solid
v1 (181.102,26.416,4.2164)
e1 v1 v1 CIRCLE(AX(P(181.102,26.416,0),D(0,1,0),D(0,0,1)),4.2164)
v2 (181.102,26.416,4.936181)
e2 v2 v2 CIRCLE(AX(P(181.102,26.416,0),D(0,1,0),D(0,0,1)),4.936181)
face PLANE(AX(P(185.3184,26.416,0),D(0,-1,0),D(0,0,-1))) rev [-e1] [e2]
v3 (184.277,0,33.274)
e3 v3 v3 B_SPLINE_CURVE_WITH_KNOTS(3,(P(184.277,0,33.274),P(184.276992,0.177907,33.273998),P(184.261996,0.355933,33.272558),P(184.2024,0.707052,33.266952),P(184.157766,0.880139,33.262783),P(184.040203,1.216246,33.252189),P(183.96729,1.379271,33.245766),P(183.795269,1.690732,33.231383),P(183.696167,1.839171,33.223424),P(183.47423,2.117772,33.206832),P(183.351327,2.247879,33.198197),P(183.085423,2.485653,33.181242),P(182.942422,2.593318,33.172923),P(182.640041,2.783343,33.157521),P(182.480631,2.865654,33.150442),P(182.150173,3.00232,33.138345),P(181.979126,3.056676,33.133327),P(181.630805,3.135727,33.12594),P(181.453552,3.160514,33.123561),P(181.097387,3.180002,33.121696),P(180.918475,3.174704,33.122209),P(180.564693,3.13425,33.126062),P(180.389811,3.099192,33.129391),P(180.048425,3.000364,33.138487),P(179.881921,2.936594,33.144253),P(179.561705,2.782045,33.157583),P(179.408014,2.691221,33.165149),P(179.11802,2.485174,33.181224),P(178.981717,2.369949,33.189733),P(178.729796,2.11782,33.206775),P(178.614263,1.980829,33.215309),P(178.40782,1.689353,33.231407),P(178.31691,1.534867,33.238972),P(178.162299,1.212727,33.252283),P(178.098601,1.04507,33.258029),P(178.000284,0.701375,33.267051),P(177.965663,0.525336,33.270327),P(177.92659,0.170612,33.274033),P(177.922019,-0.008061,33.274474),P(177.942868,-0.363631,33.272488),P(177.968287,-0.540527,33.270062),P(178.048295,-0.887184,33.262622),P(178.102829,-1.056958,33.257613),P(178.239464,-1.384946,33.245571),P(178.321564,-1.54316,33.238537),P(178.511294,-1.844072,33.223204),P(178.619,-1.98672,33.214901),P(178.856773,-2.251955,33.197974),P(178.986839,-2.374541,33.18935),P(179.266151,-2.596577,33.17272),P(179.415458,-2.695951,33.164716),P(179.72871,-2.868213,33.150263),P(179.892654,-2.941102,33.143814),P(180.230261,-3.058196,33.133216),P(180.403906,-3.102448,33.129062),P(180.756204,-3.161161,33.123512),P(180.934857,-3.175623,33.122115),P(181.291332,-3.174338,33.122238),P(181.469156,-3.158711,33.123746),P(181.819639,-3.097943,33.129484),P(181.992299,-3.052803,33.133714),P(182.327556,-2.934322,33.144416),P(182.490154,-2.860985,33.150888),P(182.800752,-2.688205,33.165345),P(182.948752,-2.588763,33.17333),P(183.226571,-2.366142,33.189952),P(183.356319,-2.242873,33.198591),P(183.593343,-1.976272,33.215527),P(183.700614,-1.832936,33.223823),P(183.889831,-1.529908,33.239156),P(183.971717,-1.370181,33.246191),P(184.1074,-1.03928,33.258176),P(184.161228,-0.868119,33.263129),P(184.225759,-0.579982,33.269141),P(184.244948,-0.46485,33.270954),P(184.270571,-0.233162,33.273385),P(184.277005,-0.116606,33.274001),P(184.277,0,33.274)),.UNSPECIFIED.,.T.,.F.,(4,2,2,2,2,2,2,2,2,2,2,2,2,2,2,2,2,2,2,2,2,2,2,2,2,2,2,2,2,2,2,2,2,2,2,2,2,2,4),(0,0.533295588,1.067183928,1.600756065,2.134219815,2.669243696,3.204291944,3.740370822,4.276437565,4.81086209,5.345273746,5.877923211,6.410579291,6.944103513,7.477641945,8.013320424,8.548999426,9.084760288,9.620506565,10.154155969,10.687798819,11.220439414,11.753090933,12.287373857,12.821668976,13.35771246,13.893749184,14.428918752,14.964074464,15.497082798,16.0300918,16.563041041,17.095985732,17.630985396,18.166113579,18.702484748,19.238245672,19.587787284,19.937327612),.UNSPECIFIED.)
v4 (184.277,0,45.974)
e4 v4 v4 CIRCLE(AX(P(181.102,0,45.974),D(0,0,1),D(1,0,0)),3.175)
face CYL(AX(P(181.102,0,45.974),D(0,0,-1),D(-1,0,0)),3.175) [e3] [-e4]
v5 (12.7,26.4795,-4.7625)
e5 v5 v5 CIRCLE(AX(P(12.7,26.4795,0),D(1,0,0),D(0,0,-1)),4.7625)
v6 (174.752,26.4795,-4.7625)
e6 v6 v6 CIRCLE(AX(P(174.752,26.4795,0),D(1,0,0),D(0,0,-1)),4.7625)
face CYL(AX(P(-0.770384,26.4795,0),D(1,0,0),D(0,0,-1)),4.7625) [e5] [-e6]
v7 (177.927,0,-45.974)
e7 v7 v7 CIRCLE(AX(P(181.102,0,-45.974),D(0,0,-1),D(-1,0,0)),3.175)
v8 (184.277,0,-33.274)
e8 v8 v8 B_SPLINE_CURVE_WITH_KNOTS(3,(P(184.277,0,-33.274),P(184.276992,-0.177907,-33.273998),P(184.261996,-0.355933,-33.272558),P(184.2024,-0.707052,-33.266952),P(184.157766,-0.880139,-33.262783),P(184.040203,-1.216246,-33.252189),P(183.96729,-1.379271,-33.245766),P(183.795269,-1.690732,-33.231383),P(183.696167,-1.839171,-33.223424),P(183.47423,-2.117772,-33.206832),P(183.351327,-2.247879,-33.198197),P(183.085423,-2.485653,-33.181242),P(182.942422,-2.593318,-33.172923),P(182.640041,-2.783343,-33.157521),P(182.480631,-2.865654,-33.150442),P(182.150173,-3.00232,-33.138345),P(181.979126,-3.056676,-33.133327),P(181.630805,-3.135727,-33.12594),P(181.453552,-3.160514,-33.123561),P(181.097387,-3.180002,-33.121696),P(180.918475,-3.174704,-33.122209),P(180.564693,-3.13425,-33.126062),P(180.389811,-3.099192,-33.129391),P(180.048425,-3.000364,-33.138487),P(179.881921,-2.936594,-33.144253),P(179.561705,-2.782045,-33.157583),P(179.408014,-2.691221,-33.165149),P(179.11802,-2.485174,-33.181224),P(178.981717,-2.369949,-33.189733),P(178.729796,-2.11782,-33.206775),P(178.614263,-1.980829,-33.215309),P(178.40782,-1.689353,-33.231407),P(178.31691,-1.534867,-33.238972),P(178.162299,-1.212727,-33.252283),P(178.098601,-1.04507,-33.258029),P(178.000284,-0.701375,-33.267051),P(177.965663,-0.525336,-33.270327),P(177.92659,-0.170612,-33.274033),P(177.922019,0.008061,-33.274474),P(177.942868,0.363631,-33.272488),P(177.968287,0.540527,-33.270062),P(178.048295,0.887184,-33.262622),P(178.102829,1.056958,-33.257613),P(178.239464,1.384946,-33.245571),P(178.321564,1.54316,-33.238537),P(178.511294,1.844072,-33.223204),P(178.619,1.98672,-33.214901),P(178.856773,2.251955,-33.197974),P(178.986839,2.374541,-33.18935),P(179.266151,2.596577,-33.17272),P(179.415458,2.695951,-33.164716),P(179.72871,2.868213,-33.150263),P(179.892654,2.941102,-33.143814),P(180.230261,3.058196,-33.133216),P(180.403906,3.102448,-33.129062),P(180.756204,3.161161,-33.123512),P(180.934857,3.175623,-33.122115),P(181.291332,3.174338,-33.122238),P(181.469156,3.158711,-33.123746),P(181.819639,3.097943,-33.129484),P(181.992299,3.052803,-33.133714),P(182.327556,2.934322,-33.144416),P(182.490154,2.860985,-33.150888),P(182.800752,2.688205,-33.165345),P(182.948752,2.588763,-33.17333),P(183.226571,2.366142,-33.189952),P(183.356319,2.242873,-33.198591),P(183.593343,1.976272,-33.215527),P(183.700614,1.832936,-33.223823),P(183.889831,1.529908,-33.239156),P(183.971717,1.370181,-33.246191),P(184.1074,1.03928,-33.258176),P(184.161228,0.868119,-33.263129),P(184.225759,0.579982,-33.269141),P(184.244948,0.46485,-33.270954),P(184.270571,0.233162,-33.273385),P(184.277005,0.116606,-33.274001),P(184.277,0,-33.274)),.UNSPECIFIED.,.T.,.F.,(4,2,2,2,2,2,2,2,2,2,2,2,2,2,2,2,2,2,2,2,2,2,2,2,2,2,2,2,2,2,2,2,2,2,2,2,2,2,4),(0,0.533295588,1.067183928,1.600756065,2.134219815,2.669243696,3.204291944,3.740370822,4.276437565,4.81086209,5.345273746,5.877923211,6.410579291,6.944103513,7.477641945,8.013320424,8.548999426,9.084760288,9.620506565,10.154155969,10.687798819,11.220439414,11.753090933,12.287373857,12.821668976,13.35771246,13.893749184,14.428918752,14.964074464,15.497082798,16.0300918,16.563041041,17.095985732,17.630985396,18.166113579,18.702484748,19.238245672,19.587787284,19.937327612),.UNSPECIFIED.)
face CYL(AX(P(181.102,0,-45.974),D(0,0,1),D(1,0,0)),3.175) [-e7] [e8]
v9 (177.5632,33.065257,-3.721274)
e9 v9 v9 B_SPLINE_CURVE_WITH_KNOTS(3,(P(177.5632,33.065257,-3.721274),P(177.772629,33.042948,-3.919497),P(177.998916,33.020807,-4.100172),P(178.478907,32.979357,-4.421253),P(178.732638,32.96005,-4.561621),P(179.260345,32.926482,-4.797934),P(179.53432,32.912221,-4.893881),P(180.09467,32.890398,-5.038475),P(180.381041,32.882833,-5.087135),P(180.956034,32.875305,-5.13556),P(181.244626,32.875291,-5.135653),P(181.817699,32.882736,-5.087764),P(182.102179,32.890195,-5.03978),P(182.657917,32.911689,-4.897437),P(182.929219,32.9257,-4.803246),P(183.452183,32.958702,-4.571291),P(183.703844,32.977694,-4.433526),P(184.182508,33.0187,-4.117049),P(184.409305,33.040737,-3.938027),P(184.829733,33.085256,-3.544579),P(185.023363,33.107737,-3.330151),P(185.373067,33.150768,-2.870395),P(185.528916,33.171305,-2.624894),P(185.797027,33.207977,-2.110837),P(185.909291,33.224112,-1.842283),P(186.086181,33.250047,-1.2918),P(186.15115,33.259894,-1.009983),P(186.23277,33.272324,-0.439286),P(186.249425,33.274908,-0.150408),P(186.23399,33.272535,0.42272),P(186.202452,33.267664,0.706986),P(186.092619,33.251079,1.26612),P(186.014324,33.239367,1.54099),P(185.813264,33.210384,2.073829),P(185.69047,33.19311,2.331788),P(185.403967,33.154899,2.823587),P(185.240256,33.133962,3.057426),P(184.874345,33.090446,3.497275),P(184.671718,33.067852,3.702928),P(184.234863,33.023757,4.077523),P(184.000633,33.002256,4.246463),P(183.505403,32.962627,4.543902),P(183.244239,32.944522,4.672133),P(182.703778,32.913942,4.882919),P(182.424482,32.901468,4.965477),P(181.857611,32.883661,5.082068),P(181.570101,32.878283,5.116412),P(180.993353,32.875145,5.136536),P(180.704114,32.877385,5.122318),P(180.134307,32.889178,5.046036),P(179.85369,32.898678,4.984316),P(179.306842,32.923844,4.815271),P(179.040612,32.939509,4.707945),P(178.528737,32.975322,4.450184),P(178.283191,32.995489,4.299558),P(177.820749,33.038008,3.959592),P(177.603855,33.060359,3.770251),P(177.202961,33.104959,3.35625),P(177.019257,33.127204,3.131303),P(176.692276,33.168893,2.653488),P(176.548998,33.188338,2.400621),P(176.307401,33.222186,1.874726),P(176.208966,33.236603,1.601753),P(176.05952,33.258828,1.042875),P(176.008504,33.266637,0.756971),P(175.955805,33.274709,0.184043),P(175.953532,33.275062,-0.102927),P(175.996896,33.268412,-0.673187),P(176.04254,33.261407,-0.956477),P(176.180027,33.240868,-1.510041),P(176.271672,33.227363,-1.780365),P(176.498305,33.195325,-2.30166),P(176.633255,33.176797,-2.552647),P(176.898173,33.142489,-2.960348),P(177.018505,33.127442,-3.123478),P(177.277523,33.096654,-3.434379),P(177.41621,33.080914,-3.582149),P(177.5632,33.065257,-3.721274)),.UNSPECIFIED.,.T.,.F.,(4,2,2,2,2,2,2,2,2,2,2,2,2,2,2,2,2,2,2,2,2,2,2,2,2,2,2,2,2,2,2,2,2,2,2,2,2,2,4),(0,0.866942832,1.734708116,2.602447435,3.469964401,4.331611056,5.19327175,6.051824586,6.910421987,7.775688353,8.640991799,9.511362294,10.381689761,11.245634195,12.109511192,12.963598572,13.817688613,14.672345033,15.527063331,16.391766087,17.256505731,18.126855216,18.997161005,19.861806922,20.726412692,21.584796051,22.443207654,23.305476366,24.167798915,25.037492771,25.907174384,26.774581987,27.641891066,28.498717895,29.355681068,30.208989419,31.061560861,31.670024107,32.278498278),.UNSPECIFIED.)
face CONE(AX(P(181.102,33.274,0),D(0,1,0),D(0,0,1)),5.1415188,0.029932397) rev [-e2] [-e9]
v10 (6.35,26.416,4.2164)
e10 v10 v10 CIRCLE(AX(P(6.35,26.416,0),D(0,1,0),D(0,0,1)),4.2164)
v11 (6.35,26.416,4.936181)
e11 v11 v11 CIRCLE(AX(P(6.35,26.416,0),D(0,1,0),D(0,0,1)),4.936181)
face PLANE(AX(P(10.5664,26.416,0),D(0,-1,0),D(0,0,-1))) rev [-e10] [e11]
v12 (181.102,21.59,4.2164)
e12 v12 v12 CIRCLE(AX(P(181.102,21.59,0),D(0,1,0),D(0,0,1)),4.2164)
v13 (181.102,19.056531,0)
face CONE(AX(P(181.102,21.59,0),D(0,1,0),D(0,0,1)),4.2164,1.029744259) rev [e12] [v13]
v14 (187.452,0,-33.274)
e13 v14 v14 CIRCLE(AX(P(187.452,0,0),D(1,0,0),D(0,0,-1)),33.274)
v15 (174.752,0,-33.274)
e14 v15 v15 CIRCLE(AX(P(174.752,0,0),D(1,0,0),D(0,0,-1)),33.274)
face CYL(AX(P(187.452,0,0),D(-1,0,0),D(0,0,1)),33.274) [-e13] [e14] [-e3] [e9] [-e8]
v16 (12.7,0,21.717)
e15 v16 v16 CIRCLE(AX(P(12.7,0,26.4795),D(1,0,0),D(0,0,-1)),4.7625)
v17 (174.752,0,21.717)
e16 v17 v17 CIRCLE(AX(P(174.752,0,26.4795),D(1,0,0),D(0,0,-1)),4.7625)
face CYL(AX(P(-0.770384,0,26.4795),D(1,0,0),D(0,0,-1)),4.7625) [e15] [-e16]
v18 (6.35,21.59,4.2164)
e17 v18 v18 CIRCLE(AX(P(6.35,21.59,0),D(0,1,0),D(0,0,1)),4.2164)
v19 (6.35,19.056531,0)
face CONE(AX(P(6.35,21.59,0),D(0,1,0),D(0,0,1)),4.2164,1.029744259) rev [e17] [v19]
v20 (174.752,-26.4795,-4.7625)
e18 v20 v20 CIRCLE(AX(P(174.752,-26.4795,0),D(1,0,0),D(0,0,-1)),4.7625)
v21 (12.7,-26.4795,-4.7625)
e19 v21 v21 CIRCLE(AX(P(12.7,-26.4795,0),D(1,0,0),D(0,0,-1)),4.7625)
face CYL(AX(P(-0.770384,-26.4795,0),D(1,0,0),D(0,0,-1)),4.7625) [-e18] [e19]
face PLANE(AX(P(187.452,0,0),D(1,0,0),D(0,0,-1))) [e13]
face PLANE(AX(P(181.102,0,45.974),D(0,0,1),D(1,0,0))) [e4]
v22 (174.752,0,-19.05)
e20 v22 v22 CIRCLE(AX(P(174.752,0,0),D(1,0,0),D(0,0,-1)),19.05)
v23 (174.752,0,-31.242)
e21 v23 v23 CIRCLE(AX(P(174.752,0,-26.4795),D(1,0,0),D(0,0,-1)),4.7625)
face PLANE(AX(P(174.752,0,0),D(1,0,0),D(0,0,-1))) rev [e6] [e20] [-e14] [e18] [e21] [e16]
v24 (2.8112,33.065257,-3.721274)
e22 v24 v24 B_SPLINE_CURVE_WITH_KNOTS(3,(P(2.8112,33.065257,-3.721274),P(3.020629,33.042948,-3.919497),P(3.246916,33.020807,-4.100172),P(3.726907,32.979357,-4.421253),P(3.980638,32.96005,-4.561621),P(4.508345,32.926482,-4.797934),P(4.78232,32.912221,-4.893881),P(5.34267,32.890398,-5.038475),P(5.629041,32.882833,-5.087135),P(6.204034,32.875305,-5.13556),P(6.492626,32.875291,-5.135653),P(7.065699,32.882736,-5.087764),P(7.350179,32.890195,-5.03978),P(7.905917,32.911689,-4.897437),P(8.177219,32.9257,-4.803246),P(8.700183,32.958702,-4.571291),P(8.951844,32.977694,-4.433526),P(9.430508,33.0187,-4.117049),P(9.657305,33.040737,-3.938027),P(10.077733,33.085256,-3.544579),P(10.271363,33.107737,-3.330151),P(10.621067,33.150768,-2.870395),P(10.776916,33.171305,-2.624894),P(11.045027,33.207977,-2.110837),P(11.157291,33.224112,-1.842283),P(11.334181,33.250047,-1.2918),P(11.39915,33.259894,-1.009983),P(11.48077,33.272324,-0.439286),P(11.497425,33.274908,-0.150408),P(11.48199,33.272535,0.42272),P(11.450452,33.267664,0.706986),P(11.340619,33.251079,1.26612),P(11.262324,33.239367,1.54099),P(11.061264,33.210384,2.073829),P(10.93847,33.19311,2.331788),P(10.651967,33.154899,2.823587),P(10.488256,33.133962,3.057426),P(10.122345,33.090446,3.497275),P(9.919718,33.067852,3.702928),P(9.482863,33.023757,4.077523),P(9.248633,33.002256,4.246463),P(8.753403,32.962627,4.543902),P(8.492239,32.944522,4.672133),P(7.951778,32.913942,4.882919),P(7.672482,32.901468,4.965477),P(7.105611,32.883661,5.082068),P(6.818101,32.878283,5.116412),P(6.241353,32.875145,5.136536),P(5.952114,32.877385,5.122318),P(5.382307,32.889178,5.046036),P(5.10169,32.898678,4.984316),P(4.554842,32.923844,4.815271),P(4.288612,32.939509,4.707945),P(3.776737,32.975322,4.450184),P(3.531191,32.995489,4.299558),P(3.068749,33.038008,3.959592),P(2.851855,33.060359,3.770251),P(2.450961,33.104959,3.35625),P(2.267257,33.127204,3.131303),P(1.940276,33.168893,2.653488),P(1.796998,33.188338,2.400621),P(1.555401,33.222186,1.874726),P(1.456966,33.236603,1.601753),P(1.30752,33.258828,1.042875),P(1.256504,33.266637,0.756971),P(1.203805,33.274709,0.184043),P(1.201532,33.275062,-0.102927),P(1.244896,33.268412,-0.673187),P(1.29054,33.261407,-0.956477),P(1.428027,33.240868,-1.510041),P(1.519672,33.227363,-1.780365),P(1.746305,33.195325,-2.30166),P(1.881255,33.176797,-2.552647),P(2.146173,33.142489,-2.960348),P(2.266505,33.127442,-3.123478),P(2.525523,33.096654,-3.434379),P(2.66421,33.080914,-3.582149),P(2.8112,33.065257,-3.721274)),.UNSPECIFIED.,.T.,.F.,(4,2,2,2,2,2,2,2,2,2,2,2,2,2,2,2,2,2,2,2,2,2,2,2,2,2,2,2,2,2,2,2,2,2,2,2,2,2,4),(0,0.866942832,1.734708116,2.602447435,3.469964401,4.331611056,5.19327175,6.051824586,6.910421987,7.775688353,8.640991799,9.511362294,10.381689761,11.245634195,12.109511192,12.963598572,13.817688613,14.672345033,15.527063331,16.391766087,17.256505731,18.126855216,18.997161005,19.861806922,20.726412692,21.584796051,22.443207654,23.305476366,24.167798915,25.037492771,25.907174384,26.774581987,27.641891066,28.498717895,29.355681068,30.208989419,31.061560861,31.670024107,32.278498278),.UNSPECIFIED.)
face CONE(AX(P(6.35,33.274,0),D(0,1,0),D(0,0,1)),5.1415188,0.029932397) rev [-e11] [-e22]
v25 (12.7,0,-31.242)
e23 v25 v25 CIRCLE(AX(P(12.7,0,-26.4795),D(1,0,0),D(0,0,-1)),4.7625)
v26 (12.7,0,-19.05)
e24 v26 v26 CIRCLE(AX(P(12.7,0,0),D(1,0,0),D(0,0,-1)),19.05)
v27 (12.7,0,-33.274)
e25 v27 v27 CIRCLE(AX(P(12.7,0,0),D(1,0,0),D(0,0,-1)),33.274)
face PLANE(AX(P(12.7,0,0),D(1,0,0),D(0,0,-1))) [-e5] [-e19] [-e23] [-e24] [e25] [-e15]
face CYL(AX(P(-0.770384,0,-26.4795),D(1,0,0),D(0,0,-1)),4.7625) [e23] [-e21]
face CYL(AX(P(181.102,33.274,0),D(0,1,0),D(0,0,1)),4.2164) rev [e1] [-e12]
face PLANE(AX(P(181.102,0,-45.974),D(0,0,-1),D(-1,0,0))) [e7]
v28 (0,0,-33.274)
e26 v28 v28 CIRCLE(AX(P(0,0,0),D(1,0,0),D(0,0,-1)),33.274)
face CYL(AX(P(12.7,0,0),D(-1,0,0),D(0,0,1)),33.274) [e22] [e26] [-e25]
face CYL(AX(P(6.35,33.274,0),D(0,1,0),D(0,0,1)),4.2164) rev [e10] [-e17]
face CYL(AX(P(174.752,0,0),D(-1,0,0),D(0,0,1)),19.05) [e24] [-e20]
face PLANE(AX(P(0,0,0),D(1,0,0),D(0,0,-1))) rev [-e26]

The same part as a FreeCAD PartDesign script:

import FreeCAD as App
import Part
import Sketcher
from FreeCAD import Vector
Q = App.Units.Quantity


def add_polygon(sketch, points):
    """Adds a closed chain of lines whose ends are joined by coincident constraints."""
    first, n = sketch.GeometryCount, len(points)
    for a, b in zip(points, points[1:] + points[:1]):
        sketch.addGeometry(Part.LineSegment(App.Vector(*a, 0), App.Vector(*b, 0)), False)
    for i in range(n):
        sketch.addConstraint(Sketcher.Constraint("Coincident", first + i, 2, first + (i + 1) % n, 1))

doc = App.newDocument("Part")
body = doc.addObject("PartDesign::Body", "Body")

sketch1 = doc.addObject("Sketcher::SketchObject", "Sketch")
body.addObject(sketch1)
sketch1.AttachmentSupport = (doc.YZ_Plane, [""])
sketch1.MapMode = "FlatFace"
sketch1.addGeometry(Part.Circle(Vector(0, 0, 0), Vector(0, 0, 1), 33), False)
sketch1.addConstraint([
    Sketcher.Constraint("Coincident", 0, 3, -1, 1),
    Sketcher.Constraint("Diameter", 0, Q("2.62 in")),
])
pad1 = doc.addObject("PartDesign::Pad", "Pad")
body.addObject(pad1)
pad1.Profile = sketch1
pad1.Length = Q("0.5 in")

sketch2 = doc.addObject("Sketcher::SketchObject", "Sketch001")
body.addObject(sketch2)
sketch2.AttachmentSupport = (doc.YZ_Plane, [""])
sketch2.MapMode = "FlatFace"
sketch2.AttachmentOffset = App.Placement(Vector(0, 0, 0.5 * 25.4), App.Rotation())
sketch2.addGeometry(Part.Circle(Vector(0, 0, 0), Vector(0, 0, 1), 19), False)
sketch2.addConstraint([
    Sketcher.Constraint("Coincident", 0, 3, -1, 1),
    Sketcher.Constraint("Diameter", 0, Q("1.5 in")),
])
pad2 = doc.addObject("PartDesign::Pad", "Pad001")
body.addObject(pad2)
pad2.Profile = sketch2
pad2.Length = Q("6.38 in")

sketch3 = doc.addObject("Sketcher::SketchObject", "Sketch002")
body.addObject(sketch3)
sketch3.AttachmentSupport = (doc.YZ_Plane, [""])
sketch3.MapMode = "FlatFace"
sketch3.AttachmentOffset = App.Placement(Vector(0, 0, 6.88 * 25.4), App.Rotation())
sketch3.addGeometry(Part.Circle(Vector(0, 0, 0), Vector(0, 0, 1), 33), False)
sketch3.addConstraint([
    Sketcher.Constraint("Coincident", 0, 3, -1, 1),
    Sketcher.Constraint("Diameter", 0, Q("2.62 in")),
])
pad3 = doc.addObject("PartDesign::Pad", "Pad002")
body.addObject(pad3)
pad3.Profile = sketch3
pad3.Length = Q("0.5 in")

sketch4 = doc.addObject("Sketcher::SketchObject", "Sketch003")
body.addObject(sketch4)
sketch4.AttachmentSupport = (doc.YZ_Plane, [""])
sketch4.MapMode = "FlatFace"
sketch4.AttachmentOffset = App.Placement(Vector(0, 0, 7.38 * 25.4), App.Rotation())
sketch4.addGeometry([
    Part.Circle(Vector(0, -26.5, 0), Vector(0, 0, 1), 4.8),
    Part.Circle(Vector(-26.5, 0, 0), Vector(0, 0, 1), 4.8),
    Part.Circle(Vector(0, 26.5, 0), Vector(0, 0, 1), 4.8),
    Part.Circle(Vector(26.5, 0, 0), Vector(0, 0, 1), 4.8),
], False)
sketch4.addConstraint([
    Sketcher.Constraint("Equal", 0, 1),
    Sketcher.Constraint("Equal", 1, 2),
    Sketcher.Constraint("Equal", 2, 3),
    Sketcher.Constraint("Symmetric", 0, 3, 2, 3, -1, 1),
    Sketcher.Constraint("Symmetric", 1, 3, 3, 3, -1, 1),
    Sketcher.Constraint("PointOnObject", 0, 3, -2),
    Sketcher.Constraint("PointOnObject", 1, 3, -1),
    Sketcher.Constraint("Diameter", 0, Q("0.375 in")),
    Sketcher.Constraint("DistanceY", 0, 3, 2, 3, Q("2.085 in")),
    Sketcher.Constraint("DistanceX", 1, 3, 3, 3, Q("2.085 in")),
])
pad4 = doc.addObject("PartDesign::Pad", "Pad003")
body.addObject(pad4)
pad4.Profile = sketch4
pad4.Length = Q("6.88 in")
pad4.Reversed = True

sketch5 = doc.addObject("Sketcher::SketchObject", "Sketch004")
body.addObject(sketch5)
sketch5.AttachmentSupport = (doc.XY_Plane, [""])
sketch5.MapMode = "FlatFace"
sketch5.AttachmentOffset = App.Placement(Vector(0, 0, -33.122175), App.Rotation())
sketch5.addGeometry(Part.Circle(Vector(181.1, 0, 0), Vector(0, 0, 1), 3.2), False)
sketch5.addConstraint([
    Sketcher.Constraint("PointOnObject", 0, 3, -1),
    Sketcher.Constraint("Diameter", 0, Q("0.25 in")),
    Sketcher.Constraint("DistanceX", -1, 1, 0, 3, Q("7.13 in")),
])
pad5 = doc.addObject("PartDesign::Pad", "Pad004")
body.addObject(pad5)
pad5.Profile = sketch5
pad5.Length = 12.851825
pad5.Reversed = True

sketch6 = doc.addObject("Sketcher::SketchObject", "Sketch005")
body.addObject(sketch6)
sketch6.AttachmentSupport = (doc.XY_Plane, [""])
sketch6.MapMode = "FlatFace"
sketch6.AttachmentOffset = App.Placement(Vector(0, 0, 33.122175), App.Rotation())
sketch6.addGeometry(Part.Circle(Vector(181.1, 0, 0), Vector(0, 0, 1), 3.2), False)
sketch6.addConstraint([
    Sketcher.Constraint("PointOnObject", 0, 3, -1),
    Sketcher.Constraint("Diameter", 0, Q("0.25 in")),
    Sketcher.Constraint("DistanceX", -1, 1, 0, 3, Q("7.13 in")),
])
pad6 = doc.addObject("PartDesign::Pad", "Pad005")
body.addObject(pad6)
pad6.Profile = sketch6
pad6.Length = 12.851825

sketch7 = doc.addObject("Sketcher::SketchObject", "Sketch006")
body.addObject(sketch7)
sketch7.AttachmentSupport = (doc.YZ_Plane, [""])
sketch7.MapMode = "FlatFace"
sketch7.AttachmentOffset = App.Placement(Vector(0, 0, 7.13 * 25.4), App.Rotation())
add_polygon(sketch7, [(19.1, 0), (33.3, 0), (33.3, 5.1), (26.4, 4.9), (26.4, 4.2), (21.6, 4.2)])
sketch7.addConstraint([
    Sketcher.Constraint("Horizontal", 0),
    Sketcher.Constraint("Vertical", 1),
    Sketcher.Constraint("Vertical", 3),
    Sketcher.Constraint("Horizontal", 4),
    Sketcher.Constraint("PointOnObject", 0, 2, -1),
    Sketcher.Constraint("Angle", 5, Q("-121 deg")),
    Sketcher.Constraint("DistanceX", 4, 2, 4, 1, Q("0.19 in")),
    Sketcher.Constraint("DistanceX", -1, 1, 0, 2, Q("1.31 in")),
    Sketcher.Constraint("DistanceX", -1, 1, 2, 2, Q("1.04 in")),
    Sketcher.Constraint("DistanceY", -1, 1, 3, 2, Q("0.166 in")),
    Sketcher.Constraint("DistanceY", 1, 1, 1, 2, 5.141519),
    Sketcher.Constraint("DistanceY", 3, 2, 3, 1, 0.719781),
])
groove = doc.addObject("PartDesign::Groove", "Groove")
body.addObject(groove)
groove.Profile = sketch7
groove.ReferenceAxis = (sketch7, ["H_Axis"])
groove.Angle = 360
doc.recompute()

linearpattern = doc.addObject("PartDesign::LinearPattern", "LinearPattern")
body.addObject(linearpattern)
linearpattern.Originals = [groove]
linearpattern.Direction = (doc.X_Axis, [""])
linearpattern.Mode = "offset"
linearpattern.Offset = Q("6.88 in")
linearpattern.Occurrences = 2
linearpattern.Reversed = True
body.Tip = linearpattern

doc.recompute()
